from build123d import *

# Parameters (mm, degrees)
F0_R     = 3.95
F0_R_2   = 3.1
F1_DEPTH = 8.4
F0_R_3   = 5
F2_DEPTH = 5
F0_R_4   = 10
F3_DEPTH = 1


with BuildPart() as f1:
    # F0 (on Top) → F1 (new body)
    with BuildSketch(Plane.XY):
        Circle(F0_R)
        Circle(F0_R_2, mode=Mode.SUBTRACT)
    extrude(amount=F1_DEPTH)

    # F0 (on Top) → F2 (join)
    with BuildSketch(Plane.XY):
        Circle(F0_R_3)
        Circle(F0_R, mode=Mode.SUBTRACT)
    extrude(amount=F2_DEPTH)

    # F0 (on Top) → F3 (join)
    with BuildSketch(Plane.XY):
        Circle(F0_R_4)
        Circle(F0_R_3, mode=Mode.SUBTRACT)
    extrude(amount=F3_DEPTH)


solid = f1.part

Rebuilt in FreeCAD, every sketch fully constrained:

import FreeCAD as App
import Part
import Sketcher
from FreeCAD import Vector

doc = App.newDocument("Part")
body = doc.addObject("PartDesign::Body", "Body")

sketch1 = body.newObject("Sketcher::SketchObject", "Sketch")
sketch1.AttachmentSupport = (doc.getObject("XY_Plane"), [""])
sketch1.MapMode = "FlatFace"
sketch1.addGeometry([
    Part.Circle(Vector(0, 0, 0), Vector(0, 0, 1), 4),
    Part.Circle(Vector(0, 0, 0), Vector(0, 0, 1), 3.1),
], False)
sketch1.addConstraint([
    Sketcher.Constraint("Coincident", 0, 3, -1, 1),
    Sketcher.Constraint("Coincident", 1, 3, -1, 1),
    Sketcher.Constraint("Diameter", 0, 7.9),
    Sketcher.Constraint("Diameter", 1, 6.2),
])
pad1 = body.newObject("PartDesign::Pad", "Pad")
pad1.Profile = sketch1
pad1.Length = 8.4

sketch2 = body.newObject("Sketcher::SketchObject", "Sketch001")
sketch2.AttachmentSupport = (doc.getObject("XY_Plane"), [""])
sketch2.MapMode = "FlatFace"
sketch2.addGeometry([
    Part.Circle(Vector(0, 0, 0), Vector(0, 0, 1), 5),
    Part.Circle(Vector(0, 0, 0), Vector(0, 0, 1), 4),
], False)
sketch2.addConstraint([
    Sketcher.Constraint("Coincident", 0, 3, -1, 1),
    Sketcher.Constraint("Coincident", 1, 3, -1, 1),
    Sketcher.Constraint("Diameter", 0, 10.0),
    Sketcher.Constraint("Diameter", 1, 7.9),
])
pad2 = body.newObject("PartDesign::Pad", "Pad001")
pad2.Profile = sketch2
pad2.Length = 5

sketch3 = body.newObject("Sketcher::SketchObject", "Sketch002")
sketch3.AttachmentSupport = (doc.getObject("XY_Plane"), [""])
sketch3.MapMode = "FlatFace"
sketch3.addGeometry([
    Part.Circle(Vector(0, 0, 0), Vector(0, 0, 1), 10),
    Part.Circle(Vector(0, 0, 0), Vector(0, 0, 1), 5),
], False)
sketch3.addConstraint([
    Sketcher.Constraint("Coincident", 0, 3, -1, 1),
    Sketcher.Constraint("Coincident", 1, 3, -1, 1),
    Sketcher.Constraint("Diameter", 0, 20.0),
    Sketcher.Constraint("Diameter", 1, 10.0),
])
pad3 = body.newObject("PartDesign::Pad", "Pad002")
pad3.Profile = sketch3
pad3.Length = 1

doc.recompute()
